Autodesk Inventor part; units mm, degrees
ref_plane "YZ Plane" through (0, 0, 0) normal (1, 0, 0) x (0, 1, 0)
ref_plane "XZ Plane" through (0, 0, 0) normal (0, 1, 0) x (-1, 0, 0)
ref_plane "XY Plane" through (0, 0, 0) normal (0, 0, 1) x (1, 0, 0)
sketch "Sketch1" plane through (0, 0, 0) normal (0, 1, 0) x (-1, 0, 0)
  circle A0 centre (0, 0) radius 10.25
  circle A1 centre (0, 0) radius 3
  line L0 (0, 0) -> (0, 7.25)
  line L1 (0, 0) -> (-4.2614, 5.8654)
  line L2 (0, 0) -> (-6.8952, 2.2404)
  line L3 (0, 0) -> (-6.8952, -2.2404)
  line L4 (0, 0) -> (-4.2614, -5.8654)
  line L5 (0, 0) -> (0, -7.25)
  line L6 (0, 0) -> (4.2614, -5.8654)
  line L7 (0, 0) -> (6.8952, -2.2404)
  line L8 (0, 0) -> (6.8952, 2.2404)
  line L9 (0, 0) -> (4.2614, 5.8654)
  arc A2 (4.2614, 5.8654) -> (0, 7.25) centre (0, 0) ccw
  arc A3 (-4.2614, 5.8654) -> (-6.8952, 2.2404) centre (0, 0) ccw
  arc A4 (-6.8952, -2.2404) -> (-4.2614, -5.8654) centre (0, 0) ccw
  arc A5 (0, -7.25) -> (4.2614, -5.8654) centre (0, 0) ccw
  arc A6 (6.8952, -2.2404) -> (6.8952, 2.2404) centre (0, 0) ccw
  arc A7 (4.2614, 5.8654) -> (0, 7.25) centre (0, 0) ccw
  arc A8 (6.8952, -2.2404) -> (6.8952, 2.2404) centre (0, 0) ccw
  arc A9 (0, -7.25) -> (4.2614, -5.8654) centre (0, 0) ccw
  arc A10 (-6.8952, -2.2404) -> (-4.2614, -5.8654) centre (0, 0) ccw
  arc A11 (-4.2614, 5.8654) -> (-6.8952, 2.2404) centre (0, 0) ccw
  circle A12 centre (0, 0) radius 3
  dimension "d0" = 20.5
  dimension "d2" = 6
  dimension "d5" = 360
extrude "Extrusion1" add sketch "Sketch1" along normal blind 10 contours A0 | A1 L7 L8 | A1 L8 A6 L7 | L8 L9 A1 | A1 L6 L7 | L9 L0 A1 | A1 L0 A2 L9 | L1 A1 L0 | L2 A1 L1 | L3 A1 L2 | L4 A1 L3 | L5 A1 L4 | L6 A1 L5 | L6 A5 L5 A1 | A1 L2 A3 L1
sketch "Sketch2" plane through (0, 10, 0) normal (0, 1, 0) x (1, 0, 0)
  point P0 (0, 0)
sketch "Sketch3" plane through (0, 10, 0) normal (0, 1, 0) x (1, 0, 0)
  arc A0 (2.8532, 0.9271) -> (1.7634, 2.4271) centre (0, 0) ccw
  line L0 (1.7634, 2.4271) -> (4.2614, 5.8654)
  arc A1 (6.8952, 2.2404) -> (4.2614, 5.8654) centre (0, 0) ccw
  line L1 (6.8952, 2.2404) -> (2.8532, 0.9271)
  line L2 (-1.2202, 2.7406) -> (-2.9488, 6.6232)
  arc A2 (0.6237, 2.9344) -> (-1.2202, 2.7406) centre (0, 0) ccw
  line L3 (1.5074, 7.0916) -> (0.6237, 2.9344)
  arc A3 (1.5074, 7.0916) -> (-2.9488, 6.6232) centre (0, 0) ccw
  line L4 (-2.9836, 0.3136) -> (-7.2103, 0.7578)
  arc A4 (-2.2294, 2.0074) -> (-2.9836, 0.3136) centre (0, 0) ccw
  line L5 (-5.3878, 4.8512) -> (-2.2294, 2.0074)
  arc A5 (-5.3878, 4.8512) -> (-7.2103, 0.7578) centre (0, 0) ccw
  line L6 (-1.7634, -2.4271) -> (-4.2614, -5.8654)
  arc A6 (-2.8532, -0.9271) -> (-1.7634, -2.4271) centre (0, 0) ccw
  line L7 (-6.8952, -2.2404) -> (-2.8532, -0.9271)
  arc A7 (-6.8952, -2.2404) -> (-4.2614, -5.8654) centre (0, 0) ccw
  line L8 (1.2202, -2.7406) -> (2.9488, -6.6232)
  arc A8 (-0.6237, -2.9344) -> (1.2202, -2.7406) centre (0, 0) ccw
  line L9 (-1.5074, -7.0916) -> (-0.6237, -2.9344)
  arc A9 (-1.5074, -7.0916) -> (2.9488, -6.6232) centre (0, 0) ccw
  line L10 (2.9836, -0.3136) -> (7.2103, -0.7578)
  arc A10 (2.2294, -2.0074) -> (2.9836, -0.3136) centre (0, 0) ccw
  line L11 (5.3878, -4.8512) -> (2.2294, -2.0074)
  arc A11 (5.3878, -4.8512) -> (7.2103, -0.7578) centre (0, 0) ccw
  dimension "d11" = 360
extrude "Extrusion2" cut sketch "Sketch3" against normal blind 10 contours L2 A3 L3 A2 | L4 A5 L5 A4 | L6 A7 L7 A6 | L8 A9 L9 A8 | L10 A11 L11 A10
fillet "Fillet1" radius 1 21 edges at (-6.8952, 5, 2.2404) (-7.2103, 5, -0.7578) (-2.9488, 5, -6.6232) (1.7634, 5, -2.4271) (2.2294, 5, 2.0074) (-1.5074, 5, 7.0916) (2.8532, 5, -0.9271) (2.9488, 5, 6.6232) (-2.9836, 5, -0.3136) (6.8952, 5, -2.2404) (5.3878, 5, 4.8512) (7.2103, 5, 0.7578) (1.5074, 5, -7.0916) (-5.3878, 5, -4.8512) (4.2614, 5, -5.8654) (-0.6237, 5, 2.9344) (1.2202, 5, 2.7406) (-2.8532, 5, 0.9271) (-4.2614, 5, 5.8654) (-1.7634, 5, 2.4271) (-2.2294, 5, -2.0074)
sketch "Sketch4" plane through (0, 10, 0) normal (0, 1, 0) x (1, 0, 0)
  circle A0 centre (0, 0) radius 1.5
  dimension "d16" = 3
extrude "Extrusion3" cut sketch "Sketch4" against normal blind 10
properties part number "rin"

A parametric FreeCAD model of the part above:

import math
import FreeCAD as App
import Part
import Sketcher
from FreeCAD import Vector
Q = App.Units.Quantity


def edges_at(feature, points):
    """Names of the edges that pass closest to the given points."""
    edges = feature.Shape.Edges
    near = lambda p: min(range(len(edges)), key=lambda i: edges[i].distToShape(Part.Vertex(*p))[0])
    return sorted({f"Edge{near(p) + 1}" for p in points})

doc = App.newDocument("Part")
body = doc.addObject("PartDesign::Body", "Body")

sketch1 = doc.addObject("Sketcher::SketchObject", "Sketch")
body.addObject(sketch1)
sketch1.AttachmentSupport = (doc.XZ_Plane, [""])
sketch1.MapMode = "FlatFace"
sketch1.addGeometry([
    Part.Circle(Vector(0, 0, 0), Vector(0, 0, 1), 10.2),
    Part.LineSegment(Vector(6.9, -2.2, 0), Vector(2.9, -0.9, 0)),
    Part.ArcOfCircle(Part.Circle(Vector(0, 0, 0), Vector(0, 0, 1), 3), math.radians(-54), math.radians(-18)),
    Part.LineSegment(Vector(1.8, -2.4, 0), Vector(4.3, -5.9, 0)),
    Part.ArcOfCircle(Part.Circle(Vector(0, 0, 0), Vector(0, 0, 1), 7.2), math.radians(-54), math.radians(-18)),
], False)
sketch1.addConstraint([
    Sketcher.Constraint("Coincident", 1, 2, 2, 2),
    Sketcher.Constraint("Coincident", 2, 1, 3, 1),
    Sketcher.Constraint("Coincident", 3, 2, 4, 1),
    Sketcher.Constraint("Coincident", 4, 2, 1, 1),
    Sketcher.Constraint("Coincident", 0, 3, -1, 1),
    Sketcher.Constraint("Coincident", 2, 3, -1, 1),
    Sketcher.Constraint("Coincident", 4, 3, -1, 1),
    Sketcher.Constraint("Radius", 2, Q("3 mm")),
    Sketcher.Constraint("Diameter", 0, Q("20.5 mm")),
    Sketcher.Constraint("Angle", 1, Q("162 deg")),
    Sketcher.Constraint("Angle", 3, Q("-54.0004 deg")),
    Sketcher.Constraint("Radius", 4, Q("7.25 mm")),
    Sketcher.Constraint("DistanceY", 2, 1, 1, 2, Q("1.5 mm")),
    Sketcher.Constraint("DistanceY", 1, 2, -1, 1, Q("0.927 mm")),
])
pad1 = doc.addObject("PartDesign::Pad", "Pad")
body.addObject(pad1)
pad1.Profile = sketch1
pad1.Length = 10
pad1.Reversed = True

sketch2 = doc.addObject("Sketcher::SketchObject", "Sketch001")
body.addObject(sketch2)
sketch2.AttachmentSupport = (doc.XZ_Plane, [""])
sketch2.MapMode = "FlatFace"
sketch2.AttachmentOffset = App.Placement(Vector(0, 0, -10), App.Rotation())
sketch2.addGeometry([
    Part.LineSegment(Vector(-2.9, -6.6, 0), Vector(-1.2, -2.7, 0)),
    Part.ArcOfCircle(Part.Circle(Vector(0, 0, 0), Vector(0, 0, 1), 3), math.radians(-114), math.radians(-78)),
    Part.LineSegment(Vector(0.6, -2.9, 0), Vector(1.5, -7.1, 0)),
    Part.ArcOfCircle(Part.Circle(Vector(0, 0, 0), Vector(0, 0, 1), 7.3), math.radians(-114), math.radians(-78)),
    Part.LineSegment(Vector(-7.2, -0.8, 0), Vector(-3, -0.3, 0)),
    Part.ArcOfCircle(Part.Circle(Vector(0, 0, 0), Vector(0, 0, 1), 3), math.radians(-174), math.radians(-138)),
    Part.LineSegment(Vector(-2.2, -2, 0), Vector(-5.4, -4.9, 0)),
    Part.ArcOfCircle(Part.Circle(Vector(0, 0, 0), Vector(0, 0, 1), 7.3), math.radians(-174), math.radians(-138)),
    Part.LineSegment(Vector(-4.3, 5.9, 0), Vector(-1.8, 2.4, 0)),
    Part.ArcOfCircle(Part.Circle(Vector(0, 0, 0), Vector(0, 0, 1), 3), math.radians(126), math.radians(162)),
    Part.LineSegment(Vector(-2.9, 0.9, 0), Vector(-6.9, 2.2, 0)),
    Part.ArcOfCircle(Part.Circle(Vector(0, 0, 0), Vector(0, 0, 1), 7.3), math.radians(126), math.radians(162)),
    Part.LineSegment(Vector(2.9, 6.6, 0), Vector(1.2, 2.7, 0)),
    Part.ArcOfCircle(Part.Circle(Vector(0, 0, 0), Vector(0, 0, 1), 3), math.radians(66), math.radians(102)),
    Part.LineSegment(Vector(-0.6, 2.9, 0), Vector(-1.5, 7.1, 0)),
    Part.ArcOfCircle(Part.Circle(Vector(0, 0, 0), Vector(0, 0, 1), 7.3), math.radians(66), math.radians(102)),
    Part.LineSegment(Vector(7.2, 0.8, 0), Vector(3, 0.3, 0)),
    Part.ArcOfCircle(Part.Circle(Vector(0, 0, 0), Vector(0, 0, 1), 3), math.radians(6), math.radians(42)),
    Part.LineSegment(Vector(2.2, 2, 0), Vector(5.4, 4.9, 0)),
    Part.ArcOfCircle(Part.Circle(Vector(0, 0, 0), Vector(0, 0, 1), 7.3), math.radians(6), math.radians(42)),
], False)
sketch2.addConstraint([
    Sketcher.Constraint("Coincident", 0, 2, 1, 1),
    Sketcher.Constraint("Coincident", 1, 2, 2, 1),
    Sketcher.Constraint("Coincident", 2, 2, 3, 2),
    Sketcher.Constraint("Coincident", 3, 1, 0, 1),
    Sketcher.Constraint("Coincident", 4, 2, 5, 1),
    Sketcher.Constraint("Coincident", 5, 2, 6, 1),
    Sketcher.Constraint("Coincident", 6, 2, 7, 2),
    Sketcher.Constraint("Coincident", 7, 1, 4, 1),
    Sketcher.Constraint("Coincident", 8, 2, 9, 1),
    Sketcher.Constraint("Coincident", 9, 2, 10, 1),
    Sketcher.Constraint("Coincident", 10, 2, 11, 2),
    Sketcher.Constraint("Coincident", 11, 1, 8, 1),
    Sketcher.Constraint("Coincident", 12, 2, 13, 1),
    Sketcher.Constraint("Coincident", 13, 2, 14, 1),
    Sketcher.Constraint("Coincident", 14, 2, 15, 2),
    Sketcher.Constraint("Coincident", 15, 1, 12, 1),
    Sketcher.Constraint("Coincident", 16, 2, 17, 1),
    Sketcher.Constraint("Coincident", 17, 2, 18, 1),
    Sketcher.Constraint("Coincident", 18, 2, 19, 2),
    Sketcher.Constraint("Coincident", 19, 1, 16, 1),
    Sketcher.Constraint("Coincident", 1, 3, -1, 1),
    Sketcher.Constraint("Coincident", 3, 3, -1, 1),
    Sketcher.Constraint("Coincident", 5, 3, -1, 1),
    Sketcher.Constraint("Coincident", 7, 3, -1, 1),
    Sketcher.Constraint("Coincident", 9, 3, -1, 1),
    Sketcher.Constraint("Coincident", 11, 3, -1, 1),
    Sketcher.Constraint("Coincident", 13, 3, -1, 1),
    Sketcher.Constraint("Coincident", 15, 3, -1, 1),
    Sketcher.Constraint("Coincident", 17, 3, -1, 1),
    Sketcher.Constraint("Coincident", 19, 3, -1, 1),
    Sketcher.Constraint("Equal", 1, 5),
    Sketcher.Constraint("Equal", 3, 7),
    Sketcher.Constraint("Equal", 5, 9),
    Sketcher.Constraint("Equal", 7, 11),
    Sketcher.Constraint("Equal", 9, 13),
    Sketcher.Constraint("Equal", 11, 15),
    Sketcher.Constraint("Equal", 13, 17),
    Sketcher.Constraint("Equal", 15, 19),
    Sketcher.Constraint("Parallel", 0, 12),
    Sketcher.Constraint("Parallel", 2, 14),
    Sketcher.Constraint("Parallel", 4, 16),
    Sketcher.Constraint("Parallel", 6, 18),
    Sketcher.Constraint("Radius", 1, Q("3 mm")),
    Sketcher.Constraint("Angle", 0, Q("66.0006 deg")),
    Sketcher.Constraint("Angle", 2, Q("-77.9992 deg")),
    Sketcher.Constraint("Angle", 4, Q("5.9994 deg")),
    Sketcher.Constraint("Angle", 6, Q("-138.0004 deg")),
    Sketcher.Constraint("Angle", 8, Q("-54.0008 deg")),
    Sketcher.Constraint("Angle", 10, Q("162.0003 deg")),
    Sketcher.Constraint("Radius", 3, Q("7.25 mm")),
    Sketcher.Constraint("DistanceY", 9, 2, 8, 2, Q("1.5 mm")),
    Sketcher.Constraint("DistanceY", -1, 1, 8, 2, Q("2.427 mm")),
    Sketcher.Constraint("DistanceX", 0, 2, 1, 2, Q("1.844 mm")),
    Sketcher.Constraint("DistanceY", 1, 2, 0, 2, Q("0.194 mm")),
    Sketcher.Constraint("DistanceY", 0, 2, 4, 2, Q("2.427 mm")),
    Sketcher.Constraint("DistanceY", 1, 2, 5, 2, Q("0.927 mm")),
    Sketcher.Constraint("DistanceX", 13, 2, 12, 2, Q("1.844 mm")),
    Sketcher.Constraint("DistanceY", 12, 2, 13, 2, Q("0.194 mm")),
    Sketcher.Constraint("DistanceY", 16, 2, 12, 2, Q("2.427 mm")),
    Sketcher.Constraint("DistanceY", 17, 2, 13, 2, Q("0.927 mm")),
])
pocket1 = doc.addObject("PartDesign::Pocket", "Pocket")
body.addObject(pocket1)
pocket1.Profile = sketch2
pocket1.Length = 10
pocket1.Reversed = True
doc.recompute()

fillet = doc.addObject("PartDesign::Fillet", "Fillet")
body.addObject(fillet)
fillet.Base = (pocket1, edges_at(pocket1, [
    (-6.895, 5, 2.24),
    (-7.21, 5, -0.758),
    (-2.949, 5, -6.623),
    (1.763, 5, -2.427),
    (2.229, 5, 2.007),
    (-1.507, 5, 7.092),
    (2.853, 5, -0.927),
    (2.949, 5, 6.623),
    (-2.984, 5, -0.314),
    (6.895, 5, -2.24),
    (5.388, 5, 4.851),
    (7.21, 5, 0.758),
    (1.507, 5, -7.092),
    (-5.388, 5, -4.851),
    (4.261, 5, -5.865),
    (-0.624, 5, 2.934),
    (1.22, 5, 2.741),
    (-2.853, 5, 0.927),
    (-4.261, 5, 5.865),
    (-1.763, 5, 2.427),
    (-2.229, 5, -2.007),
]))
fillet.Radius = 1

sketch3 = doc.addObject("Sketcher::SketchObject", "Sketch002")
body.addObject(sketch3)
sketch3.AttachmentSupport = (doc.XZ_Plane, [""])
sketch3.MapMode = "FlatFace"
sketch3.AttachmentOffset = App.Placement(Vector(0, 0, -10), App.Rotation())
sketch3.addGeometry(Part.Circle(Vector(0, 0, 0), Vector(0, 0, 1), 1.5), False)
sketch3.addConstraint([
    Sketcher.Constraint("Coincident", 0, 3, -1, 1),
    Sketcher.Constraint("Diameter", 0, Q("3 mm")),
])
pocket2 = doc.addObject("PartDesign::Pocket", "Pocket001")
body.addObject(pocket2)
pocket2.Profile = sketch3
pocket2.Length = 10
pocket2.Reversed = True

doc.recompute()
